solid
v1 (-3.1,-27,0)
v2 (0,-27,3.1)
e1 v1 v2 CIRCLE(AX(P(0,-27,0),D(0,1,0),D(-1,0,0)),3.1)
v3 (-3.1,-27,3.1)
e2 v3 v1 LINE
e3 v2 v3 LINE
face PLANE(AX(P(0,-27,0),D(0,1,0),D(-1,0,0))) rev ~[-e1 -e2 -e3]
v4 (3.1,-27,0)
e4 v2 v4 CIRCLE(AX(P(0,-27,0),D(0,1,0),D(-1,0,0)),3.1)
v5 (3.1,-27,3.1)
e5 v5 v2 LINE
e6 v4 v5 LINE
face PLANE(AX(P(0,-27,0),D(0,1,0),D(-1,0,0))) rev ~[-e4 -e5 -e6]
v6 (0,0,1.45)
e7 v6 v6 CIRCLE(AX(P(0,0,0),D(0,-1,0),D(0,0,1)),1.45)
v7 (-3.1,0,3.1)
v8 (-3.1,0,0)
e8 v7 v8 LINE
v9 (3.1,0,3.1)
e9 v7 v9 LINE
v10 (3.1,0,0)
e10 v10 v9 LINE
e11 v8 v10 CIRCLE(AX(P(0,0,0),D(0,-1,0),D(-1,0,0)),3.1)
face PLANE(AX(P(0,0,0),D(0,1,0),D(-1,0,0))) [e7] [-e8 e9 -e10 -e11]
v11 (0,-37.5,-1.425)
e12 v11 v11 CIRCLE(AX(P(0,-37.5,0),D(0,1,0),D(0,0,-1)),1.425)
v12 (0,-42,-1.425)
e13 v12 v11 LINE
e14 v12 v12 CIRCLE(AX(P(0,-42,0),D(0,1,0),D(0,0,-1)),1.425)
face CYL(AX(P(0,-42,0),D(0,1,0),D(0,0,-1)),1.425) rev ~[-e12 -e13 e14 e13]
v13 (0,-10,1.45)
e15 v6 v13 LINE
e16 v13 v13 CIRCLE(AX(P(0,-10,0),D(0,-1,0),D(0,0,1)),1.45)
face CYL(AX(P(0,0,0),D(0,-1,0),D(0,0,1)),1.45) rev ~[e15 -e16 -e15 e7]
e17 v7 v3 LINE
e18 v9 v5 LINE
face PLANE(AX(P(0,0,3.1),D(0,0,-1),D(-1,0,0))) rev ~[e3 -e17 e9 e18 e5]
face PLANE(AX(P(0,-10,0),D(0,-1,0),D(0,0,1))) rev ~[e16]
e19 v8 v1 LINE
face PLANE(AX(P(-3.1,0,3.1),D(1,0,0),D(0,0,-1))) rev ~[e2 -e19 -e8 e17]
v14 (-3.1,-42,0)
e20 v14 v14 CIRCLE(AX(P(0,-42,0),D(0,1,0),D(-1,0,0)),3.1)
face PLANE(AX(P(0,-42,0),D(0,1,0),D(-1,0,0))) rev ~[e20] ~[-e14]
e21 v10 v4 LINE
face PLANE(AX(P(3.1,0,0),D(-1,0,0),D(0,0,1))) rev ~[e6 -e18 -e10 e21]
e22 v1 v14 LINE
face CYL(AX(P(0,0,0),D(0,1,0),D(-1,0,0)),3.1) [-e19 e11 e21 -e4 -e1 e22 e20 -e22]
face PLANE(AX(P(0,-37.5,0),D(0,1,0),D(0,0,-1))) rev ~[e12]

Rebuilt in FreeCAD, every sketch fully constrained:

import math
import FreeCAD as App
import Part
import Sketcher
from FreeCAD import Vector

doc = App.newDocument("Part")
body = doc.addObject("PartDesign::Body", "Body")

sketch1 = body.newObject("Sketcher::SketchObject", "Sketch")
sketch1.AttachmentSupport = (doc.getObject("XZ_Plane"), [""])
sketch1.MapMode = "FlatFace"
sketch1.addGeometry(Part.Circle(Vector(0, 0, 0), Vector(0, 0, 1), 3.1), False)
sketch1.addConstraint([
    Sketcher.Constraint("Coincident", 0, 3, -1, 1),
    Sketcher.Constraint("Diameter", 0, 6.2),
])
pad1 = body.newObject("PartDesign::Pad", "Pad")
pad1.Profile = sketch1
pad1.Length = 42

sketch2 = body.newObject("Sketcher::SketchObject", "Sketch001")
sketch2.AttachmentSupport = (doc.getObject("XZ_Plane"), [""])
sketch2.MapMode = "FlatFace"
sketch2.addGeometry([
    Part.LineSegment(Vector(3.1, 3.1, 0), Vector(3.1, 0, 0)),
    Part.ArcOfCircle(Part.Circle(Vector(0, 0, 0), Vector(0, 0, 1), 3.1), math.radians(0), math.radians(90)),
    Part.LineSegment(Vector(0, 3.1, 0), Vector(3.1, 3.1, 0)),
    Part.ArcOfCircle(Part.Circle(Vector(0, 0, 0), Vector(0, 0, 1), 3.1), math.radians(90), math.radians(180)),
    Part.LineSegment(Vector(-3.1, 0, 0), Vector(-3.1, 3.1, 0)),
    Part.LineSegment(Vector(-3.1, 3.1, 0), Vector(0, 3.1, 0)),
], False)
sketch2.addConstraint([
    Sketcher.Constraint("Tangent", 0, 2, 1, 1),
    Sketcher.Constraint("Tangent", 1, 2, 2, 1),
    Sketcher.Constraint("Coincident", 2, 2, 0, 1),
    Sketcher.Constraint("Tangent", 3, 2, 4, 1),
    Sketcher.Constraint("Coincident", 4, 2, 5, 1),
    Sketcher.Constraint("Tangent", 5, 2, 3, 1),
    Sketcher.Constraint("Vertical", 0),
    Sketcher.Constraint("Horizontal", 2),
    Sketcher.Constraint("Vertical", 4),
    Sketcher.Constraint("Horizontal", 5),
    Sketcher.Constraint("Coincident", 1, 3, -1, 1),
    Sketcher.Constraint("Coincident", 3, 3, -1, 1),
    Sketcher.Constraint("Equal", 1, 3),
    Sketcher.Constraint("Radius", 1, 3.1),
])
pad2 = body.newObject("PartDesign::Pad", "Pad001")
pad2.Profile = sketch2
pad2.Length = 27

sketch3 = body.newObject("Sketcher::SketchObject", "Sketch002")
sketch3.AttachmentSupport = (doc.getObject("XZ_Plane"), [""])
sketch3.MapMode = "FlatFace"
sketch3.addGeometry(Part.Circle(Vector(0, 0, 0), Vector(0, 0, 1), 1.4), False)
sketch3.addConstraint([
    Sketcher.Constraint("Coincident", 0, 3, -1, 1),
    Sketcher.Constraint("Diameter", 0, 2.9),
])
doc.recompute()
hole = body.newObject("PartDesign::Hole", "Hole")
hole.Profile = sketch3
hole.ThreadType = "None"
hole.Diameter = 2.9
hole.DepthType = "Dimension"
hole.Depth = 10
hole.DrillPoint = "Flat"
hole.Reversed = True

sketch4 = body.newObject("Sketcher::SketchObject", "Sketch003")
sketch4.AttachmentSupport = (doc.getObject("XZ_Plane"), [""])
sketch4.MapMode = "FlatFace"
sketch4.AttachmentOffset = App.Placement(Vector(0, 0, 42), App.Rotation())
sketch4.addGeometry(Part.Circle(Vector(0, 0, 0), Vector(0, 0, 1), 1.4), False)
sketch4.addConstraint([
    Sketcher.Constraint("Coincident", 0, 3, -1, 1),
    Sketcher.Constraint("Diameter", 0, 2.85),
])
doc.recompute()
hole2 = body.newObject("PartDesign::Hole", "Hole001")
hole2.Profile = sketch4
hole2.ThreadType = "None"
hole2.Diameter = 2.85
hole2.DepthType = "Dimension"
hole2.Depth = 4.5
hole2.DrillPoint = "Flat"

doc.recompute()
